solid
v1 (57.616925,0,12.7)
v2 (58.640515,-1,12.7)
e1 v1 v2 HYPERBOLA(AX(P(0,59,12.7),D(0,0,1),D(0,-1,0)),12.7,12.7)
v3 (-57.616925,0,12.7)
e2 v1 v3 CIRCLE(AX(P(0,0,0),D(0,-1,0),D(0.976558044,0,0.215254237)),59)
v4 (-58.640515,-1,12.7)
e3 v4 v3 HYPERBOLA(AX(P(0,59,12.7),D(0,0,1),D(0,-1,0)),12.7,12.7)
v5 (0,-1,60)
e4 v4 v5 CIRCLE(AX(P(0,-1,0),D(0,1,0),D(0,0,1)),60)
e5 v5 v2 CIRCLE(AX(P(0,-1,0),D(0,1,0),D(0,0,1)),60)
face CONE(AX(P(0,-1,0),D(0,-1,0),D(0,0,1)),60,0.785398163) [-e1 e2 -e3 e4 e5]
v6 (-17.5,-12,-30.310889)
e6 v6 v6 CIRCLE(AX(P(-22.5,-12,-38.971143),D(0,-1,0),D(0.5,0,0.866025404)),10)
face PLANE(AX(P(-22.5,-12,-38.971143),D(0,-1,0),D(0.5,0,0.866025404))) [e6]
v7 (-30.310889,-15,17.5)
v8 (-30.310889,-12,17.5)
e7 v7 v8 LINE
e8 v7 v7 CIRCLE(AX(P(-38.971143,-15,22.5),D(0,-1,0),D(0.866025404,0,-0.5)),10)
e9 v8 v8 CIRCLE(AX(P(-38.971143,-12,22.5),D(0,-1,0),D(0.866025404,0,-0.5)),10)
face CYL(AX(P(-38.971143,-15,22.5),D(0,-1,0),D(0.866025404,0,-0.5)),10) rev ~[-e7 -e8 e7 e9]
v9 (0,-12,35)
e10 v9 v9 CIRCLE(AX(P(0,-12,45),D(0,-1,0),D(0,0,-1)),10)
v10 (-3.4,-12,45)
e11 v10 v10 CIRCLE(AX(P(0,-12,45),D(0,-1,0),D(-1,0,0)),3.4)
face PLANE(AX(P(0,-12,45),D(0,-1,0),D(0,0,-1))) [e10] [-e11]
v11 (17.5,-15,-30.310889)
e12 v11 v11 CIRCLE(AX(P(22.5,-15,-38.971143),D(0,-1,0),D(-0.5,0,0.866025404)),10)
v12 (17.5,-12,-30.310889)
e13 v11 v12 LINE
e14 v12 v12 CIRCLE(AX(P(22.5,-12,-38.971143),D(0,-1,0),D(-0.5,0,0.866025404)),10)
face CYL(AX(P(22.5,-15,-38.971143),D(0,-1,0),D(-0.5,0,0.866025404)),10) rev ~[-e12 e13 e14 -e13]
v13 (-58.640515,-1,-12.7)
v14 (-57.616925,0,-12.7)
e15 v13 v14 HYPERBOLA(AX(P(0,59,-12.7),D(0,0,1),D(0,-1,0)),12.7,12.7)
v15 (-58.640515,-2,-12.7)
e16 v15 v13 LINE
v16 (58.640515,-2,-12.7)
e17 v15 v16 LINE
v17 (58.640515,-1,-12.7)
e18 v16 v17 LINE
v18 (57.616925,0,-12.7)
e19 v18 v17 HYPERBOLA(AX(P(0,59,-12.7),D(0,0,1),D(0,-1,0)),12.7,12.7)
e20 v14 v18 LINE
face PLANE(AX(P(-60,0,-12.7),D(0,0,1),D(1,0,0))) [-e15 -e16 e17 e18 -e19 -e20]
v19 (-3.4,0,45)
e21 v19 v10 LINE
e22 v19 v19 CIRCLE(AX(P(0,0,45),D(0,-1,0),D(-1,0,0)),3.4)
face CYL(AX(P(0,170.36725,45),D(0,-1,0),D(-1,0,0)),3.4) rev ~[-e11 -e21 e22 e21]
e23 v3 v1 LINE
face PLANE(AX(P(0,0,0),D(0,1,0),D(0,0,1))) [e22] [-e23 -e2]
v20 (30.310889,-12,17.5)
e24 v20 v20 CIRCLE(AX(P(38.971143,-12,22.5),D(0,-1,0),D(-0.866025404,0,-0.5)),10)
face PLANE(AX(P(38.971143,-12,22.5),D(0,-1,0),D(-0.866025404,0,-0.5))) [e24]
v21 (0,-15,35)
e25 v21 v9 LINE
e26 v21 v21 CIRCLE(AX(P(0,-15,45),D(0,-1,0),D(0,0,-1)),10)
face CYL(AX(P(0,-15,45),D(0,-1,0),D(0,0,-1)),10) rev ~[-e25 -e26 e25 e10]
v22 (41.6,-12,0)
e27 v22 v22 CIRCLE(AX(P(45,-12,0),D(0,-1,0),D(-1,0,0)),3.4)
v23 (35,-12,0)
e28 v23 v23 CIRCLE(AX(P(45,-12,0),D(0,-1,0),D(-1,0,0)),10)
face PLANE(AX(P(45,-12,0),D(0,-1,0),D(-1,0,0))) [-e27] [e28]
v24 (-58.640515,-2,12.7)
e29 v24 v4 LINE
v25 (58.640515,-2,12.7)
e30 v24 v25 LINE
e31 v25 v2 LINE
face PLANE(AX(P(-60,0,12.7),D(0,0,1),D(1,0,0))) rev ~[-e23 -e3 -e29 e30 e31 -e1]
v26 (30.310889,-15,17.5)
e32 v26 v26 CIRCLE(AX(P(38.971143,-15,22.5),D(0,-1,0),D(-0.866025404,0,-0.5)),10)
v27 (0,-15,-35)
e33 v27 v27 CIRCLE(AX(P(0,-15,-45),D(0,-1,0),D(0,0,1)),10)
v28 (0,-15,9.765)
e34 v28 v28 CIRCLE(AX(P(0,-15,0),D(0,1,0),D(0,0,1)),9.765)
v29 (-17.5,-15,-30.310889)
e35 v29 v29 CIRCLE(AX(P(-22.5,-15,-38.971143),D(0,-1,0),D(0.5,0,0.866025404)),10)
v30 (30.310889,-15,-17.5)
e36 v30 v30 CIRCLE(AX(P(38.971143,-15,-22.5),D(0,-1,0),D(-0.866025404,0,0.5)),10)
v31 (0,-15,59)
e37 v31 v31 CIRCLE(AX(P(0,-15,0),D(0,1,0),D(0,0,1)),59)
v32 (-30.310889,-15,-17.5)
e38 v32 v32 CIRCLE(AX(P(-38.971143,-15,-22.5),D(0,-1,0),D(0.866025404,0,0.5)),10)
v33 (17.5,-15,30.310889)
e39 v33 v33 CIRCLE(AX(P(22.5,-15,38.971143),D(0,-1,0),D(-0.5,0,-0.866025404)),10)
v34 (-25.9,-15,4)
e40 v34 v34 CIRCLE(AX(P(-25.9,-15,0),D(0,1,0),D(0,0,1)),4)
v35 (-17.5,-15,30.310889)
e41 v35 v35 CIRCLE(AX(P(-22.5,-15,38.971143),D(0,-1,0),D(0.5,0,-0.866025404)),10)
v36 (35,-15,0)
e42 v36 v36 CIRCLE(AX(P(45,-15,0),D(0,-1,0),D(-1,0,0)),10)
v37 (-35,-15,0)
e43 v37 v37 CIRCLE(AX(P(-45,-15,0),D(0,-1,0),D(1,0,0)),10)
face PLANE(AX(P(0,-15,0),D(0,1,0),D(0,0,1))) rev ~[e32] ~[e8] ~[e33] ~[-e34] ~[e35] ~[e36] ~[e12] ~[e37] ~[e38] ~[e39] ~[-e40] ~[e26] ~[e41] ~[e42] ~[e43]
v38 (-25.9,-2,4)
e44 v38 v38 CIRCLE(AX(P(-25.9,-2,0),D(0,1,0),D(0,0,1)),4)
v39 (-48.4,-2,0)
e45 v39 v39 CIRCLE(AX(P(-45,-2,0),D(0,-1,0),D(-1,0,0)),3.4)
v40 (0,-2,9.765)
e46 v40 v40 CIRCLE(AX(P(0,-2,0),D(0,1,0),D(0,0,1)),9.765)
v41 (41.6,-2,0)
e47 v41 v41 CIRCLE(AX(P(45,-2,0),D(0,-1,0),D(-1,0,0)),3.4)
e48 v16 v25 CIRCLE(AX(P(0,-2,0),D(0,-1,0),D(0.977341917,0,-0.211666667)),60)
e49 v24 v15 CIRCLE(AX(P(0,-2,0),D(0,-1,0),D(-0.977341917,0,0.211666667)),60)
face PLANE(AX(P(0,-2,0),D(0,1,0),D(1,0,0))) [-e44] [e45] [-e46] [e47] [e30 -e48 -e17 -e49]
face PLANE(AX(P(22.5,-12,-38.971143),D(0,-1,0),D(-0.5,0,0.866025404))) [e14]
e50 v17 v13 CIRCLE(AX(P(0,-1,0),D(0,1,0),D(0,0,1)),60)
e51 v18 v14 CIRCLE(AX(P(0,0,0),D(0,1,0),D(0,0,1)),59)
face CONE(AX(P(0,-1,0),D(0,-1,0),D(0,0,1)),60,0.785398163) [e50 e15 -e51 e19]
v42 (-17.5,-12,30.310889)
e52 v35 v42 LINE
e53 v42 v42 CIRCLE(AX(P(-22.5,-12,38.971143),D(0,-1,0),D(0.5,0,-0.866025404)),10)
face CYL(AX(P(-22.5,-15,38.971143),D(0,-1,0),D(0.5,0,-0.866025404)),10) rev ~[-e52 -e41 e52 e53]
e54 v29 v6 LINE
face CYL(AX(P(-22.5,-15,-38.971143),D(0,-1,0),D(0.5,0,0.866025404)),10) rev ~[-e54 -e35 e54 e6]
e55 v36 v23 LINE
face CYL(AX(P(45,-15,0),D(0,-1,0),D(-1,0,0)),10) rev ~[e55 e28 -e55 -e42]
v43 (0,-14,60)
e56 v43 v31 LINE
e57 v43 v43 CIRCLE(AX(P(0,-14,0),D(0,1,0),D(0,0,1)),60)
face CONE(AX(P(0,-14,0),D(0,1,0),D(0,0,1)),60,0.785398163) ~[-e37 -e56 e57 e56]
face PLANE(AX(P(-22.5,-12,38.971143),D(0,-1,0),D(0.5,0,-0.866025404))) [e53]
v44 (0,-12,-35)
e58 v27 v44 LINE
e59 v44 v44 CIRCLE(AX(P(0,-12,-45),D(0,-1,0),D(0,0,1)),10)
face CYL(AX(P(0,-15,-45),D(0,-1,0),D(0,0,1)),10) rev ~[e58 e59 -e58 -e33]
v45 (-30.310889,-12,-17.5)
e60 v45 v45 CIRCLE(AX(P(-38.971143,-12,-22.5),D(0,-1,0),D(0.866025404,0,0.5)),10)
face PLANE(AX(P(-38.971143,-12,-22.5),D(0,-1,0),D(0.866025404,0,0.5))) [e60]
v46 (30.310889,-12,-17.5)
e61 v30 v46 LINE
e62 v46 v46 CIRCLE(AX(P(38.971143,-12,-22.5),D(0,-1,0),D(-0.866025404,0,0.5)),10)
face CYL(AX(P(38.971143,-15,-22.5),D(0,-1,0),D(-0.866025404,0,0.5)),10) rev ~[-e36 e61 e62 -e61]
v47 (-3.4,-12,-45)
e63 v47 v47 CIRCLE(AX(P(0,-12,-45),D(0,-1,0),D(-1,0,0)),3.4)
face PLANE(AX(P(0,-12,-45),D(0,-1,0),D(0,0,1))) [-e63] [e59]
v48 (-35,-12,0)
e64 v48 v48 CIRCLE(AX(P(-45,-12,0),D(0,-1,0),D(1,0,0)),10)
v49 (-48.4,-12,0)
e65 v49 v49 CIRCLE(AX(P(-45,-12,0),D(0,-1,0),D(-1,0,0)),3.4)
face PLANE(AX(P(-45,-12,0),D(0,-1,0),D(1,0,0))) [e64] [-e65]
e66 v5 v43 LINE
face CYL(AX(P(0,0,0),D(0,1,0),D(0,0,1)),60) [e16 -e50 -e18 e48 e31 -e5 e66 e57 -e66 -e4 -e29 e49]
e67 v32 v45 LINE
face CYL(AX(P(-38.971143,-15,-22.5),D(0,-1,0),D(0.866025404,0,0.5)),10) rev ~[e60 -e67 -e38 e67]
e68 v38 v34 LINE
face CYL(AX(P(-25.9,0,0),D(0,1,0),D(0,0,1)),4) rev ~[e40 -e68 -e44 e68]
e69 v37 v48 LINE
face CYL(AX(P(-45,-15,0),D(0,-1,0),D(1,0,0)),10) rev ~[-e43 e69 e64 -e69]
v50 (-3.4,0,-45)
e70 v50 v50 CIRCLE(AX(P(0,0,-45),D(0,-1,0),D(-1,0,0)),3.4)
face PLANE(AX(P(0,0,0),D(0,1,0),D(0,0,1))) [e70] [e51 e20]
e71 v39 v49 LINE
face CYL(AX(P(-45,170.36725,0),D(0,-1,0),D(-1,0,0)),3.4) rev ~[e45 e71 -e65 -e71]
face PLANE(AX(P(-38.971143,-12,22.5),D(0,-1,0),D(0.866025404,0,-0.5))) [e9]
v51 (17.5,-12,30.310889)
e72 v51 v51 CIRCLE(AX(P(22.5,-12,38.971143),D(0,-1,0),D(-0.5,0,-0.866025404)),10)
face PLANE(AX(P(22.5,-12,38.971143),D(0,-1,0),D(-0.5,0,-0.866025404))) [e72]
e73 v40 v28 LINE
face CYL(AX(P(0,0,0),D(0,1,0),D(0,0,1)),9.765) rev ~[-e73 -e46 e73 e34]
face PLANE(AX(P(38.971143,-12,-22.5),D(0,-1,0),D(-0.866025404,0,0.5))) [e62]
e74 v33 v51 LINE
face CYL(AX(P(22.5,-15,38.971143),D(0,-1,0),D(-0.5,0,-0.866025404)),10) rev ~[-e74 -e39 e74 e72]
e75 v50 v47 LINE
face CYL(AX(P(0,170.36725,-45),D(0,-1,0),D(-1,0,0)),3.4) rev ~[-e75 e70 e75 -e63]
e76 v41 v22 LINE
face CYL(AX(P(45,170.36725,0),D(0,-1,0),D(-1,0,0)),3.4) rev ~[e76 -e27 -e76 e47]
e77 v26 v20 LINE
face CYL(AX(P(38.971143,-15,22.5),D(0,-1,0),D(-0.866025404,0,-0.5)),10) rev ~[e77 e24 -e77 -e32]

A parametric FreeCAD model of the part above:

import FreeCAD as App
import Part
import Sketcher
from FreeCAD import Vector
Q = App.Units.Quantity


def edges_at(feature, points):
    """Names of the edges that pass closest to the given points."""
    edges = feature.Shape.Edges
    near = lambda p: min(range(len(edges)), key=lambda i: edges[i].distToShape(Part.Vertex(*p))[0])
    return sorted({f"Edge{near(p) + 1}" for p in points})


def add_polygon(sketch, points):
    """Adds a closed chain of lines whose ends are joined by coincident constraints."""
    first, n = sketch.GeometryCount, len(points)
    for a, b in zip(points, points[1:] + points[:1]):
        sketch.addGeometry(Part.LineSegment(App.Vector(*a, 0), App.Vector(*b, 0)), False)
    for i in range(n):
        sketch.addConstraint(Sketcher.Constraint("Coincident", first + i, 2, first + (i + 1) % n, 1))

doc = App.newDocument("Part")
body = doc.addObject("PartDesign::Body", "Body")

# Sketch on XZ plane
sketch1 = body.newObject("Sketcher::SketchObject", "Sketch")
sketch1.AttachmentSupport = (doc.getObject("XZ_Plane"), [""])
sketch1.MapMode = "FlatFace"
sketch1.addGeometry([
    Part.Circle(Vector(0, 0, 0), Vector(0, 0, 1), 60),
    Part.Circle(Vector(0, 0, 0), Vector(0, 0, 1), 10),
], False)
sketch1.addConstraint([
    Sketcher.Constraint("Coincident", 0, 3, -1, 1),
    Sketcher.Constraint("Coincident", 1, 3, -1, 1),
    Sketcher.Constraint("Diameter", 0, Q("120 mm")),
    Sketcher.Constraint("Diameter", 1, Q("19.53 mm")),
])
pad1 = body.newObject("PartDesign::Pad", "Pad")
pad1.Profile = sketch1
pad1.Length = 15
doc.recompute()

chamfer = body.newObject("PartDesign::Chamfer", "Chamfer")
chamfer.Base = (pad1, edges_at(pad1, [(0, 0, -60), (0, -15, -60)]))
chamfer.Size = 1

# Sketch on XZ plane
sketch2 = body.newObject("Sketcher::SketchObject", "Sketch001")
sketch2.AttachmentSupport = (doc.getObject("XZ_Plane"), [""])
sketch2.MapMode = "FlatFace"
sketch2.addGeometry([
    Part.Circle(Vector(-45, 0, 0), Vector(0, 0, 1), 3.4),
    Part.Circle(Vector(0, 45, 0), Vector(0, 0, 1), 3.4),
    Part.Circle(Vector(0, -45, 0), Vector(0, 0, 1), 3.4),
    Part.Circle(Vector(45, 0, 0), Vector(0, 0, 1), 3.4),
], False)
sketch2.addConstraint([
    Sketcher.Constraint("Equal", 0, 1),
    Sketcher.Constraint("Equal", 1, 2),
    Sketcher.Constraint("Equal", 2, 3),
    Sketcher.Constraint("Symmetric", 1, 3, 2, 3, -1, 1),
    Sketcher.Constraint("Symmetric", 0, 3, 3, 3, -1, 1),
    Sketcher.Constraint("PointOnObject", 0, 3, -1),
    Sketcher.Constraint("PointOnObject", 1, 3, -2),
    Sketcher.Constraint("Diameter", 0, Q("6.8 mm")),
    Sketcher.Constraint("DistanceX", 0, 3, -1, 1, Q("45 mm")),
    Sketcher.Constraint("DistanceY", -1, 1, 1, 3, Q("45 mm")),
])
doc.recompute()
hole = body.newObject("PartDesign::Hole", "Hole")
hole.Profile = sketch2
hole.ThreadType = "None"
hole.Diameter = 6.8
hole.DepthType = "ThroughAll"
hole.Reversed = True

# Sketch on XZ plane
sketch3 = body.newObject("Sketcher::SketchObject", "Sketch002")
sketch3.AttachmentSupport = (doc.getObject("XZ_Plane"), [""])
sketch3.MapMode = "FlatFace"
sketch3.AttachmentOffset = App.Placement(Vector(0, 0, 15), App.Rotation())
sketch3.addGeometry(Part.Circle(Vector(0, 45, 0), Vector(0, 0, 1), 10), False)
sketch3.addConstraint([
    Sketcher.Constraint("PointOnObject", 0, 3, -2),
    Sketcher.Constraint("Diameter", 0, Q("20 mm")),
    Sketcher.Constraint("DistanceY", -1, 1, 0, 3, Q("45 mm")),
])
pocket1 = body.newObject("PartDesign::Pocket", "Pocket")
pocket1.Profile = sketch3
pocket1.Length = 3
doc.recompute()

polarpattern = body.newObject("PartDesign::PolarPattern", "PolarPattern")
polarpattern.Originals = [pocket1]
polarpattern.Axis = (doc.getObject("Y_Axis"), [""])
polarpattern.Angle = 360
polarpattern.Occurrences = 12
body.Tip = polarpattern

# Sketch on XZ plane
sketch4 = body.newObject("Sketcher::SketchObject", "Sketch003")
sketch4.AttachmentSupport = (doc.getObject("XZ_Plane"), [""])
sketch4.MapMode = "FlatFace"
add_polygon(sketch4, [(-60, -13), (-60, 13), (60, 13), (60, -13)])  # lines 0-3
sketch4.addConstraint([
    Sketcher.Constraint("Vertical", 0),
    Sketcher.Constraint("Horizontal", 1),
    Sketcher.Constraint("Vertical", 2),
    Sketcher.Constraint("Horizontal", 3),
    Sketcher.Constraint("Symmetric", 0, 2, 2, 2, -1, 1),
    Sketcher.Constraint("DistanceX", 1, 1, 1, 2, Q("120 mm")),
    Sketcher.Constraint("DistanceY", 0, 1, 0, 2, Q("25.4 mm")),
])
pocket2 = body.newObject("PartDesign::Pocket", "Pocket001")
pocket2.Profile = sketch4
pocket2.Length = 2
pocket2.Reversed = True

# Sketch on XZ plane
sketch5 = body.newObject("Sketcher::SketchObject", "Sketch004")
sketch5.AttachmentSupport = (doc.getObject("XZ_Plane"), [""])
sketch5.MapMode = "FlatFace"
sketch5.addGeometry(Part.Circle(Vector(-25.9, 0, 0), Vector(0, 0, 1), 4), False)
sketch5.addConstraint([
    Sketcher.Constraint("PointOnObject", 0, 3, -1),
    Sketcher.Constraint("Diameter", 0, Q("8 mm")),
    Sketcher.Constraint("DistanceX", 0, 3, -1, 1, Q("25.9 mm")),
])
pocket3 = body.newObject("PartDesign::Pocket", "Pocket002")
pocket3.Profile = sketch5
pocket3.Length = 15
pocket3.Reversed = True

# Sketch on XZ plane
sketch6 = body.newObject("Sketcher::SketchObject", "Sketch005")
sketch6.AttachmentSupport = (doc.getObject("XZ_Plane"), [""])
sketch6.MapMode = "FlatFace"
sketch6.addGeometry(Part.Circle(Vector(-25.9, 0, 0), Vector(0, 0, 1), 4), False)
sketch6.addConstraint([
    Sketcher.Constraint("PointOnObject", 0, 3, -1),
    Sketcher.Constraint("Diameter", 0, Q("8 mm")),
    Sketcher.Constraint("DistanceX", 0, 3, -1, 1, Q("25.9 mm")),
])
pocket4 = body.newObject("PartDesign::Pocket", "Pocket003")
pocket4.Profile = sketch6
pocket4.Length = 87.16844

doc.recompute()
